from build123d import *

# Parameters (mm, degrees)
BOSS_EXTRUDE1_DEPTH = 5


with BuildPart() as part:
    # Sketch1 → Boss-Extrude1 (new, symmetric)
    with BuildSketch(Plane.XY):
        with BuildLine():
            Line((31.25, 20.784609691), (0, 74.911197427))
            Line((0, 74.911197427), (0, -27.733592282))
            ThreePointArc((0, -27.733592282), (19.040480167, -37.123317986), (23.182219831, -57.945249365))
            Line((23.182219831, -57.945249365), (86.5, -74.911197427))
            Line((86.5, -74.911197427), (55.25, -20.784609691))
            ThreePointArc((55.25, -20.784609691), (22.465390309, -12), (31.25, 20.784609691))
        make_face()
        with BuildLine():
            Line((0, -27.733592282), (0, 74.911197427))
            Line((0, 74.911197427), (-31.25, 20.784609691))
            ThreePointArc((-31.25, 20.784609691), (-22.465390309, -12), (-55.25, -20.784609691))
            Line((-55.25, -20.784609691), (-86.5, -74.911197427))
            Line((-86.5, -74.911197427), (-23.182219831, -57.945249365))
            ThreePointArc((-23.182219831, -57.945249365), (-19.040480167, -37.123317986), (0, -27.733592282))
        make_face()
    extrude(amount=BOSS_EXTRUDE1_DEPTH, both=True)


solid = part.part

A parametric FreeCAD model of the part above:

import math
import FreeCAD as App
import Part
import Sketcher

V = App.Vector
Q = App.Units.Quantity

doc = App.newDocument("Part")
body = doc.addObject("PartDesign::Body", "Body")

sketch1 = body.newObject("Sketcher::SketchObject", "Sketch")
sketch1.AttachmentSupport = (doc.getObject("XY_Plane"), [""])
sketch1.MapMode = "FlatFace"
sketch1.addGeometry(Part.LineSegment(V(31, 21, 0), V(0, 75, 0)), False)
sketch1.addGeometry(Part.LineSegment(V(0, 75, 0), V(-31, 21, 0)), False)
sketch1.addGeometry(Part.ArcOfCircle(Part.Circle(V(-43, 0, 0), V(0, 0, 1), 24), math.radians(-120), math.radians(60)), False)
sketch1.addGeometry(Part.LineSegment(V(-55, -21, 0), V(-86, -75, 0)), False)
sketch1.addGeometry(Part.LineSegment(V(-86, -75, 0), V(-23, -58, 0)), False)
sketch1.addGeometry(Part.ArcOfCircle(Part.Circle(V(0, -52, 0), V(0, 0, 1), 24), math.radians(90), math.radians(195)), False)
sketch1.addGeometry(Part.ArcOfCircle(Part.Circle(V(0, -52, 0), V(0, 0, 1), 24), math.radians(-15), math.radians(90)), False)
sketch1.addGeometry(Part.LineSegment(V(23, -58, 0), V(86, -75, 0)), False)
sketch1.addGeometry(Part.LineSegment(V(86, -75, 0), V(55, -21, 0)), False)
sketch1.addGeometry(Part.ArcOfCircle(Part.Circle(V(43, 0, 0), V(0, 0, 1), 24), math.radians(120), math.radians(300)), False)
sketch1.addConstraint(Sketcher.Constraint("Coincident", 0, 2, 1, 1))
sketch1.addConstraint(Sketcher.Constraint("Coincident", 1, 2, 2, 2))
sketch1.addConstraint(Sketcher.Constraint("Coincident", 2, 1, 3, 1))
sketch1.addConstraint(Sketcher.Constraint("Coincident", 3, 2, 4, 1))
sketch1.addConstraint(Sketcher.Constraint("Coincident", 4, 2, 5, 2))
sketch1.addConstraint(Sketcher.Constraint("Tangent", 5, 1, 6, 2))
sketch1.addConstraint(Sketcher.Constraint("Coincident", 6, 1, 7, 1))
sketch1.addConstraint(Sketcher.Constraint("Coincident", 7, 2, 8, 1))
sketch1.addConstraint(Sketcher.Constraint("Coincident", 8, 2, 9, 2))
sketch1.addConstraint(Sketcher.Constraint("Coincident", 9, 1, 0, 1))
sketch1.addConstraint(Sketcher.Constraint("Equal", 2, 5))
sketch1.addConstraint(Sketcher.Constraint("Equal", 5, 6))
sketch1.addConstraint(Sketcher.Constraint("Equal", 6, 9))
sketch1.addConstraint(Sketcher.Constraint("Symmetric", 2, 3, 9, 3, -1, 1))
sketch1.addConstraint(Sketcher.Constraint("Symmetric", 4, 2, 6, 1, -2))
sketch1.addConstraint(Sketcher.Constraint("Symmetric", 3, 2, 7, 2, -2))
sketch1.addConstraint(Sketcher.Constraint("Symmetric", 2, 1, 8, 2, -2))
sketch1.addConstraint(Sketcher.Constraint("PointOnObject", 0, 2, -2))
sketch1.addConstraint(Sketcher.Constraint("PointOnObject", 5, 1, -2))
sketch1.addConstraint(Sketcher.Constraint("Parallel", 1, 3))
sketch1.addConstraint(Sketcher.Constraint("Parallel", 0, 8))
sketch1.addConstraint(Sketcher.Constraint("Equal", 1, 3))
sketch1.addConstraint(Sketcher.Constraint("Radius", 2, 24.0))
sketch1.addConstraint(Sketcher.Constraint("Angle", 0, Q("120 deg")))
sketch1.addConstraint(Sketcher.Constraint("Angle", 4, Q("15 deg")))
sketch1.addConstraint(Sketcher.Constraint("DistanceX", 2, 3, 1, 2, 12.0))
sketch1.addConstraint(Sketcher.Constraint("DistanceX", 2, 1, 2, 3, 12.0))
sketch1.addConstraint(Sketcher.Constraint("Distance", 0, 62.5))
sketch1.addConstraint(Sketcher.Constraint("DistanceY", 5, 3, 1, 2, 72.518202))
pad1 = body.newObject("PartDesign::Pad", "Pad")
pad1.Profile = sketch1
pad1.Length = 10
pad1.Midplane = True

doc.recompute()
